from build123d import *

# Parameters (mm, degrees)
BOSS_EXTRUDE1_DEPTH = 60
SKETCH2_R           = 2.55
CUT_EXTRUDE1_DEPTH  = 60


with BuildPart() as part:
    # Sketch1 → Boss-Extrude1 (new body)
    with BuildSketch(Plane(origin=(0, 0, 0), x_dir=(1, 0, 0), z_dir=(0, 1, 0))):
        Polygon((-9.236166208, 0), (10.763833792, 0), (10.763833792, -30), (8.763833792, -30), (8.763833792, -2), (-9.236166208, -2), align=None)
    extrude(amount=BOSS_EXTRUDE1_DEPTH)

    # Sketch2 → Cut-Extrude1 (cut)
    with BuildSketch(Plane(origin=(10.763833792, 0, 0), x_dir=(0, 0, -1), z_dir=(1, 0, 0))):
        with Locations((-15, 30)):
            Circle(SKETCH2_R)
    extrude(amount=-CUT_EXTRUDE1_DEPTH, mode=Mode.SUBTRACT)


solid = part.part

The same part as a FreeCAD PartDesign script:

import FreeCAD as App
import Part
import Sketcher
Q = App.Units.Quantity


def add_polygon(sketch, points):
    """Adds a closed chain of lines whose ends are joined by coincident constraints."""
    first, n = sketch.GeometryCount, len(points)
    for a, b in zip(points, points[1:] + points[:1]):
        sketch.addGeometry(Part.LineSegment(App.Vector(*a, 0), App.Vector(*b, 0)), False)
    for i in range(n):
        sketch.addConstraint(Sketcher.Constraint("Coincident", first + i, 2, first + (i + 1) % n, 1))

doc = App.newDocument("Part")
body = doc.addObject("PartDesign::Body", "Body")

sketch1 = body.newObject("Sketcher::SketchObject", "Sketch")
sketch1.AttachmentSupport = (doc.getObject("XZ_Plane"), [""])
sketch1.MapMode = "FlatFace"
add_polygon(sketch1, [(10.763834, 0), (-9.236166, 0), (-9.236166, 2), (8.763834, 2), (8.763834, 30), (10.763834, 30)])
sketch1.addConstraint(Sketcher.Constraint("Horizontal", 0))
sketch1.addConstraint(Sketcher.Constraint("Vertical", 1))
sketch1.addConstraint(Sketcher.Constraint("Horizontal", 2))
sketch1.addConstraint(Sketcher.Constraint("Vertical", 3))
sketch1.addConstraint(Sketcher.Constraint("Horizontal", 4))
sketch1.addConstraint(Sketcher.Constraint("Vertical", 5))
sketch1.addConstraint(Sketcher.Constraint("PointOnObject", 0, 2, -1))
sketch1.addConstraint(Sketcher.Constraint("Equal", 4, 1))
sketch1.addConstraint(Sketcher.Constraint("DistanceX", 0, 2, 0, 1, Q("20 mm")))
sketch1.addConstraint(Sketcher.Constraint("DistanceX", 2, 1, 2, 2, Q("18 mm")))
sketch1.addConstraint(Sketcher.Constraint("DistanceY", 3, 1, 3, 2, Q("28 mm")))
sketch1.addConstraint(Sketcher.Constraint("DistanceX", 0, 2, -1, 1, Q("9.236166 mm")))
pad1 = body.newObject("PartDesign::Pad", "Pad")
pad1.Profile = sketch1
pad1.Length = 60
pad1.Reversed = True

sketch2 = body.newObject("Sketcher::SketchObject", "Sketch001")
sketch2.AttachmentSupport = (doc.getObject("YZ_Plane"), [""])
sketch2.MapMode = "FlatFace"
sketch2.AttachmentOffset = App.Placement(App.Vector(0, 0, 10.763834), App.Rotation())
sketch2.addGeometry(Part.Circle(App.Vector(30, 15, 0), App.Vector(0, 0, 1), 2.55), False)
sketch2.addConstraint(Sketcher.Constraint("Diameter", 0, Q("5.1 mm")))
sketch2.addConstraint(Sketcher.Constraint("DistanceX", -1, 1, 0, 3, Q("30 mm")))
sketch2.addConstraint(Sketcher.Constraint("DistanceY", -1, 1, 0, 3, Q("15 mm")))
pocket1 = body.newObject("PartDesign::Pocket", "Pocket")
pocket1.Profile = sketch2
pocket1.Length = 60

doc.recompute()
